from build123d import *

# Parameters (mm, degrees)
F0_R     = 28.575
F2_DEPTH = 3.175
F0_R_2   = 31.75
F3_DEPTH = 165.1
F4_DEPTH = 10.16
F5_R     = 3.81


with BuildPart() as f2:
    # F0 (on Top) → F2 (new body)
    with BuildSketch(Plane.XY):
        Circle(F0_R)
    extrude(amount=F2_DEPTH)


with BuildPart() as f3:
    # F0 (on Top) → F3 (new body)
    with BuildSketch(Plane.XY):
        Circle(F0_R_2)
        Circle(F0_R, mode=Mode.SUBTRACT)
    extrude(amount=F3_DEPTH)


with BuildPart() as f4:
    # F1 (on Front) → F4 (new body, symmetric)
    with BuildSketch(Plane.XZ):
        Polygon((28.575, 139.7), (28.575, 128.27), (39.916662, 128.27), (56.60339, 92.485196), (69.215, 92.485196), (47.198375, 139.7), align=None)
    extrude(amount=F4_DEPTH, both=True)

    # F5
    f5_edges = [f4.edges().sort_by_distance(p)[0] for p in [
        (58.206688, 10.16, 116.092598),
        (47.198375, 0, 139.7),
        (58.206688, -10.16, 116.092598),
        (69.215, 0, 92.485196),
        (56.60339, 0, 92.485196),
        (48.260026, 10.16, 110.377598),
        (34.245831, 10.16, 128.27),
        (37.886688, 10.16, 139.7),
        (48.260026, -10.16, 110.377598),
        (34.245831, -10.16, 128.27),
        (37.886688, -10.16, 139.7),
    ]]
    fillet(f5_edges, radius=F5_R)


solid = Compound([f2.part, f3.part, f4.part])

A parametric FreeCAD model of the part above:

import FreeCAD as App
import Part
import Sketcher
from FreeCAD import Vector
Q = App.Units.Quantity


def edges_at(feature, points):
    """Names of the edges that pass closest to the given points."""
    edges = feature.Shape.Edges
    near = lambda p: min(range(len(edges)), key=lambda i: edges[i].distToShape(Part.Vertex(*p))[0])
    return sorted({f"Edge{near(p) + 1}" for p in points})

doc = App.newDocument("Part")
body = doc.addObject("PartDesign::Body", "Body")

# Sketch on XY plane
sketch1 = doc.addObject("Sketcher::SketchObject", "Sketch")
body.addObject(sketch1)
sketch1.AttachmentSupport = (doc.XY_Plane, [""])
sketch1.MapMode = "FlatFace"
sketch1.addGeometry(Part.Circle(Vector(0, 0, 0), Vector(0, 0, 1), 29), False)
sketch1.addConstraint(Sketcher.Constraint("Coincident", 0, 3, -1, 1))
sketch1.addConstraint(Sketcher.Constraint("Diameter", 0, Q("2.25 in")))
pad1 = doc.addObject("PartDesign::Pad", "Pad")
body.addObject(pad1)
pad1.Profile = sketch1
pad1.Length = Q("0.125 in")
body2 = doc.addObject("PartDesign::Body", "Body001")

# Sketch on XY plane
sketch2 = doc.addObject("Sketcher::SketchObject", "Sketch001")
body2.addObject(sketch2)
sketch2.AttachmentSupport = (doc.getObject("XY_Plane001"), [""])
sketch2.MapMode = "FlatFace"
sketch2.addGeometry(Part.Circle(Vector(0, 0, 0), Vector(0, 0, 1), 32), False)
sketch2.addGeometry(Part.Circle(Vector(0, 0, 0), Vector(0, 0, 1), 29), False)
sketch2.addConstraint(Sketcher.Constraint("Coincident", 0, 3, -1, 1))
sketch2.addConstraint(Sketcher.Constraint("Coincident", 1, 3, -1, 1))
sketch2.addConstraint(Sketcher.Constraint("Diameter", 0, Q("2.5 in")))
sketch2.addConstraint(Sketcher.Constraint("Diameter", 1, Q("2.25 in")))
pad2 = doc.addObject("PartDesign::Pad", "Pad001")
body2.addObject(pad2)
pad2.Profile = sketch2
pad2.Length = Q("6.5 in")
body3 = doc.addObject("PartDesign::Body", "Body002")

# Sketch on XZ plane
sketch3 = doc.addObject("Sketcher::SketchObject", "Sketch002")
body3.addObject(sketch3)
sketch3.AttachmentSupport = (doc.getObject("XZ_Plane002"), [""])
sketch3.MapMode = "FlatFace"
sketch3.addGeometry(Part.LineSegment(Vector(29, 140, 0), Vector(29, 128, 0)), False)
sketch3.addGeometry(Part.LineSegment(Vector(29, 128, 0), Vector(40, 128, 0)), False)
sketch3.addGeometry(Part.LineSegment(Vector(40, 128, 0), Vector(57, 92, 0)), False)
sketch3.addGeometry(Part.LineSegment(Vector(57, 92, 0), Vector(69, 92, 0)), False)
sketch3.addGeometry(Part.LineSegment(Vector(69, 92, 0), Vector(47, 140, 0)), False)
sketch3.addGeometry(Part.LineSegment(Vector(47, 140, 0), Vector(29, 140, 0)), False)
sketch3.addConstraint(Sketcher.Constraint("Coincident", 0, 2, 1, 1))
sketch3.addConstraint(Sketcher.Constraint("Coincident", 1, 2, 2, 1))
sketch3.addConstraint(Sketcher.Constraint("Coincident", 2, 2, 3, 1))
sketch3.addConstraint(Sketcher.Constraint("Coincident", 3, 2, 4, 1))
sketch3.addConstraint(Sketcher.Constraint("Coincident", 4, 2, 5, 1))
sketch3.addConstraint(Sketcher.Constraint("Coincident", 5, 2, 0, 1))
sketch3.addConstraint(Sketcher.Constraint("Vertical", 0))
sketch3.addConstraint(Sketcher.Constraint("Horizontal", 1))
sketch3.addConstraint(Sketcher.Constraint("Horizontal", 3))
sketch3.addConstraint(Sketcher.Constraint("Horizontal", 5))
sketch3.addConstraint(Sketcher.Constraint("Parallel", 2, 4))
sketch3.addConstraint(Sketcher.Constraint("Angle", 2, Q("-65 deg")))
sketch3.addConstraint(Sketcher.Constraint("DistanceY", 0, 2, 0, 1, Q("0.45 in")))
sketch3.addConstraint(Sketcher.Constraint("DistanceY", -1, 1, 4, 2, Q("5.5 in")))
sketch3.addConstraint(Sketcher.Constraint("DistanceX", 0, 2, 3, 2, Q("1.6 in")))
sketch3.addConstraint(Sketcher.Constraint("DistanceX", -1, 1, 0, 2, Q("1.125 in")))
sketch3.addConstraint(Sketcher.Constraint("DistanceX", 3, 1, 3, 2, 12.61161))
sketch3.addConstraint(Sketcher.Constraint("DistanceX", 1, 1, 1, 2, 11.341662))
pad3 = doc.addObject("PartDesign::Pad", "Pad002")
body3.addObject(pad3)
pad3.Profile = sketch3
pad3.Length = Q("0.8 in")
pad3.Midplane = True
doc.recompute()

fillet = doc.addObject("PartDesign::Fillet", "Fillet")
body3.addObject(fillet)
fillet.Base = (pad3, edges_at(pad3, [
    (58.207, 10.16, 116.093),
    (47.198, 0, 139.7),
    (58.207, -10.16, 116.093),
    (69.215, 0, 92.485),
    (56.603, 0, 92.485),
    (48.26, 10.16, 110.378),
    (34.246, 10.16, 128.27),
    (37.887, 10.16, 139.7),
    (48.26, -10.16, 110.378),
    (34.246, -10.16, 128.27),
    (37.887, -10.16, 139.7),
]))
fillet.Radius = Q("0.15 in")

doc.recompute()
